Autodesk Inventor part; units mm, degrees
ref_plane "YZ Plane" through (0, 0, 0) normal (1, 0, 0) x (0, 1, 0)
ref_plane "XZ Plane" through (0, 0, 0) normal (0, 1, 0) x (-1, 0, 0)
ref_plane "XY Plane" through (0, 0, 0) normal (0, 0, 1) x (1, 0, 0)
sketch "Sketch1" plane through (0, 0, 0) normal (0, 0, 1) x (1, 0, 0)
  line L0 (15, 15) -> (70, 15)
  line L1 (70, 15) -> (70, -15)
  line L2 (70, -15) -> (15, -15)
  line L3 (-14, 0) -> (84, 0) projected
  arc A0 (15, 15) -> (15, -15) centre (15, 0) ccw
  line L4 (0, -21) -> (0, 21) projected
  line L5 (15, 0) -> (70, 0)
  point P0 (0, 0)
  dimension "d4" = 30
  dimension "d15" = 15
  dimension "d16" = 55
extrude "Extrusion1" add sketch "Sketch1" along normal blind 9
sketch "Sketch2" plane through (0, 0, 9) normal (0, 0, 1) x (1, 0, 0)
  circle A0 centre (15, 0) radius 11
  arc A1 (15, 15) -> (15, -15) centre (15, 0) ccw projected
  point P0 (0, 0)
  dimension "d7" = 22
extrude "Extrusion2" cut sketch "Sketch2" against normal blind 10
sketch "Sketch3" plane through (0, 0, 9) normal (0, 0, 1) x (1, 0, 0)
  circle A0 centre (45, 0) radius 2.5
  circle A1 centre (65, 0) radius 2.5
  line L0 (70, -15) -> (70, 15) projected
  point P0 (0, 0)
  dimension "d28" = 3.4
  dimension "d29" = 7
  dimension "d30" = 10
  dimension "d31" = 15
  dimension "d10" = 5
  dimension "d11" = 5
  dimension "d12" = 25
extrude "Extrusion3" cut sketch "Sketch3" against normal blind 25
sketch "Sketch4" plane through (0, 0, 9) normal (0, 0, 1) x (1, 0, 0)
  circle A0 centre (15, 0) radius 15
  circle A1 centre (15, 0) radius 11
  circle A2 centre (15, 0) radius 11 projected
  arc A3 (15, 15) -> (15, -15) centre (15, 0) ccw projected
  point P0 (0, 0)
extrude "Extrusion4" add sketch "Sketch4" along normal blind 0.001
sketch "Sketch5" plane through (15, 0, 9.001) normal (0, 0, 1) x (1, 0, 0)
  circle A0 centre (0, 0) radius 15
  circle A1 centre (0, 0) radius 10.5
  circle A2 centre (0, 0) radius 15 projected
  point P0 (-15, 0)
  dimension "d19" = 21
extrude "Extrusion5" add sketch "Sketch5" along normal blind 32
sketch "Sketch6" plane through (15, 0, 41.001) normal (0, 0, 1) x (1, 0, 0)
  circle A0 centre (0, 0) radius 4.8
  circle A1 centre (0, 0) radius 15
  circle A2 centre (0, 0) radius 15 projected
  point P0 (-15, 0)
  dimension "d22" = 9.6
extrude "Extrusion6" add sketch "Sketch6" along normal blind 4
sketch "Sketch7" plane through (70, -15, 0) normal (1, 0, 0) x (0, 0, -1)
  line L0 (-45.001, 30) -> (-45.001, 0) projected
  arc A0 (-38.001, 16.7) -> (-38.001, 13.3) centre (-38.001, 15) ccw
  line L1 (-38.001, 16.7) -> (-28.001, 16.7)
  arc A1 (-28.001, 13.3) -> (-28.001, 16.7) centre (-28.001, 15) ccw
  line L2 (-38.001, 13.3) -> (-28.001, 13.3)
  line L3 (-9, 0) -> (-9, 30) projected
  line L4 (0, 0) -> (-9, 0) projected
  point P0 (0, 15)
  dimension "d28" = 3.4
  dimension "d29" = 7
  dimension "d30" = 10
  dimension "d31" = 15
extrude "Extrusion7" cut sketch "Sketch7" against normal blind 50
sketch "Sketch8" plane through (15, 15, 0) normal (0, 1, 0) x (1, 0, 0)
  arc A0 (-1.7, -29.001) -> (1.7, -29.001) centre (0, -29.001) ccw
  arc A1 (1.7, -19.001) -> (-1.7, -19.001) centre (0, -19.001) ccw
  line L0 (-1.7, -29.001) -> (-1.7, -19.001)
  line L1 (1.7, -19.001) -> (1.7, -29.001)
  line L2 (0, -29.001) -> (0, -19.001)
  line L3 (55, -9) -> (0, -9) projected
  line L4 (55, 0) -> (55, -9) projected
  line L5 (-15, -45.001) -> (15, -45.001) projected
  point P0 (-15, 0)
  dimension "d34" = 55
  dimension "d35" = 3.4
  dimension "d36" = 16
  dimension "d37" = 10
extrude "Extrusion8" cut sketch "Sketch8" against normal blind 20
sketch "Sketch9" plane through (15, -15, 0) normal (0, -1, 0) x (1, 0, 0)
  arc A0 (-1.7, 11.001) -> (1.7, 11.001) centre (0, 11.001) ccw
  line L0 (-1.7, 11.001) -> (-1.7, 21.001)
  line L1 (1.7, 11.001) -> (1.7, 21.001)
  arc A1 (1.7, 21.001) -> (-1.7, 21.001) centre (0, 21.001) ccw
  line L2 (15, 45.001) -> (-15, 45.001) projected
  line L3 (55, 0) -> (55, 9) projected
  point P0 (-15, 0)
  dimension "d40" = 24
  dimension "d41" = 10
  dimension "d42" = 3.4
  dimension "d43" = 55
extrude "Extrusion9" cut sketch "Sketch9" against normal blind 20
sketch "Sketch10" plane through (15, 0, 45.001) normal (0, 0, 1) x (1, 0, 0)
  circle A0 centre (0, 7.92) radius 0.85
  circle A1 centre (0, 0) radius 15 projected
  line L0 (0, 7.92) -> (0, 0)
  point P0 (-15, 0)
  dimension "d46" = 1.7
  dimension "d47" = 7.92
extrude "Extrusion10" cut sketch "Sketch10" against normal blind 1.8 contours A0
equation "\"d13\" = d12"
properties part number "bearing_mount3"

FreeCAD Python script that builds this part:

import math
import FreeCAD as App
import Part
import Sketcher
Q = App.Units.Quantity

doc = App.newDocument("Part")
body = doc.addObject("PartDesign::Body", "Body")

# Sketch on XY plane
sketch1 = doc.addObject("Sketcher::SketchObject", "Sketch")
body.addObject(sketch1)
sketch1.AttachmentSupport = (doc.XY_Plane, [""])
sketch1.MapMode = "FlatFace"
sketch1.addGeometry([
    Part.LineSegment(App.Vector(70, 15, 0), App.Vector(15, 15, 0)),
    Part.ArcOfCircle(Part.Circle(App.Vector(15, 0, 0), App.Vector(0, 0, 1), 15), math.radians(90), math.radians(270)),
    Part.LineSegment(App.Vector(15, -15, 0), App.Vector(70, -15, 0)),
    Part.LineSegment(App.Vector(70, -15, 0), App.Vector(70, 15, 0)),
], False)
sketch1.addConstraint([
    Sketcher.Constraint("Tangent", 0, 2, 1, 1),
    Sketcher.Constraint("Tangent", 1, 2, 2, 1),
    Sketcher.Constraint("Coincident", 2, 2, 3, 1),
    Sketcher.Constraint("Coincident", 3, 2, 0, 1),
    Sketcher.Constraint("Horizontal", 0),
    Sketcher.Constraint("Horizontal", 2),
    Sketcher.Constraint("Vertical", 3),
    Sketcher.Constraint("PointOnObject", 1, 3, -1),
    Sketcher.Constraint("Radius", 1, Q("15 mm")),
    Sketcher.Constraint("DistanceX", 0, 2, 0, 1, Q("55 mm")),
    Sketcher.Constraint("DistanceX", -1, 1, 1, 3, Q("15 mm")),
])
pad1 = doc.addObject("PartDesign::Pad", "Pad")
body.addObject(pad1)
pad1.Profile = sketch1
pad1.Length = 9

# Sketch on XY plane
sketch2 = doc.addObject("Sketcher::SketchObject", "Sketch001")
body.addObject(sketch2)
sketch2.AttachmentSupport = (doc.XY_Plane, [""])
sketch2.MapMode = "FlatFace"
sketch2.AttachmentOffset = App.Placement(App.Vector(0, 0, 9), App.Rotation())
sketch2.addGeometry(Part.Circle(App.Vector(15, 0, 0), App.Vector(0, 0, 1), 11), False)
sketch2.addConstraint([
    Sketcher.Constraint("PointOnObject", 0, 3, -1),
    Sketcher.Constraint("Diameter", 0, Q("22 mm")),
    Sketcher.Constraint("DistanceX", -1, 1, 0, 3, Q("15 mm")),
])
pocket1 = doc.addObject("PartDesign::Pocket", "Pocket")
body.addObject(pocket1)
pocket1.Profile = sketch2
pocket1.Length = 10

# Sketch on XY plane
sketch3 = doc.addObject("Sketcher::SketchObject", "Sketch002")
body.addObject(sketch3)
sketch3.AttachmentSupport = (doc.XY_Plane, [""])
sketch3.MapMode = "FlatFace"
sketch3.AttachmentOffset = App.Placement(App.Vector(0, 0, 9), App.Rotation())
sketch3.addGeometry([
    Part.Circle(App.Vector(45, 0, 0), App.Vector(0, 0, 1), 2.5),
    Part.Circle(App.Vector(65, 0, 0), App.Vector(0, 0, 1), 2.5),
], False)
sketch3.addConstraint([
    Sketcher.Constraint("Equal", 0, 1),
    Sketcher.Constraint("PointOnObject", 0, 3, -1),
    Sketcher.Constraint("PointOnObject", 1, 3, -1),
    Sketcher.Constraint("Diameter", 0, Q("5 mm")),
    Sketcher.Constraint("DistanceX", -1, 1, 0, 3, Q("45 mm")),
    Sketcher.Constraint("DistanceX", -1, 1, 1, 3, Q("65 mm")),
])
pocket2 = doc.addObject("PartDesign::Pocket", "Pocket001")
body.addObject(pocket2)
pocket2.Profile = sketch3
pocket2.Length = 25

# Sketch on XY plane
sketch4 = doc.addObject("Sketcher::SketchObject", "Sketch003")
body.addObject(sketch4)
sketch4.AttachmentSupport = (doc.XY_Plane, [""])
sketch4.MapMode = "FlatFace"
sketch4.AttachmentOffset = App.Placement(App.Vector(0, 0, 9), App.Rotation())
sketch4.addGeometry([
    Part.Circle(App.Vector(15, 0, 0), App.Vector(0, 0, 1), 15),
    Part.Circle(App.Vector(15, 0, 0), App.Vector(0, 0, 1), 11),
], False)
sketch4.addConstraint([
    Sketcher.Constraint("Coincident", 1, 3, 0, 3),
    Sketcher.Constraint("PointOnObject", 0, 3, -1),
    Sketcher.Constraint("Diameter", 0, Q("30 mm")),
    Sketcher.Constraint("Diameter", 1, Q("22 mm")),
    Sketcher.Constraint("DistanceX", -1, 1, 0, 3, Q("15 mm")),
])
pad2 = doc.addObject("PartDesign::Pad", "Pad001")
body.addObject(pad2)
pad2.Profile = sketch4
pad2.Length = 0.001

# Sketch on XY plane
sketch5 = doc.addObject("Sketcher::SketchObject", "Sketch004")
body.addObject(sketch5)
sketch5.AttachmentSupport = (doc.XY_Plane, [""])
sketch5.MapMode = "FlatFace"
sketch5.AttachmentOffset = App.Placement(App.Vector(0, 0, 9.001), App.Rotation())
sketch5.addGeometry([
    Part.Circle(App.Vector(15, 0, 0), App.Vector(0, 0, 1), 15),
    Part.Circle(App.Vector(15, 0, 0), App.Vector(0, 0, 1), 10.5),
], False)
sketch5.addConstraint([
    Sketcher.Constraint("Coincident", 1, 3, 0, 3),
    Sketcher.Constraint("PointOnObject", 0, 3, -1),
    Sketcher.Constraint("Diameter", 1, Q("21 mm")),
    Sketcher.Constraint("Diameter", 0, Q("30 mm")),
    Sketcher.Constraint("DistanceX", -1, 1, 0, 3, Q("15 mm")),
])
pad3 = doc.addObject("PartDesign::Pad", "Pad002")
body.addObject(pad3)
pad3.Profile = sketch5
pad3.Length = 32

# Sketch on XY plane
sketch6 = doc.addObject("Sketcher::SketchObject", "Sketch005")
body.addObject(sketch6)
sketch6.AttachmentSupport = (doc.XY_Plane, [""])
sketch6.MapMode = "FlatFace"
sketch6.AttachmentOffset = App.Placement(App.Vector(0, 0, 41.001), App.Rotation())
sketch6.addGeometry([
    Part.Circle(App.Vector(15, 0, 0), App.Vector(0, 0, 1), 15),
    Part.Circle(App.Vector(15, 0, 0), App.Vector(0, 0, 1), 4.8),
], False)
sketch6.addConstraint([
    Sketcher.Constraint("Coincident", 1, 3, 0, 3),
    Sketcher.Constraint("PointOnObject", 0, 3, -1),
    Sketcher.Constraint("Diameter", 1, Q("9.6 mm")),
    Sketcher.Constraint("Diameter", 0, Q("30 mm")),
    Sketcher.Constraint("DistanceX", -1, 1, 0, 3, Q("15 mm")),
])
pad4 = doc.addObject("PartDesign::Pad", "Pad003")
body.addObject(pad4)
pad4.Profile = sketch6
pad4.Length = 4

# Sketch on YZ plane
sketch7 = doc.addObject("Sketcher::SketchObject", "Sketch006")
body.addObject(sketch7)
sketch7.AttachmentSupport = (doc.YZ_Plane, [""])
sketch7.MapMode = "FlatFace"
sketch7.AttachmentOffset = App.Placement(App.Vector(0, 0, 70), App.Rotation())
sketch7.addGeometry([
    Part.LineSegment(App.Vector(1.7, 28.001, 0), App.Vector(1.7, 38.001, 0)),
    Part.ArcOfCircle(Part.Circle(App.Vector(0, 38.001, 0), App.Vector(0, 0, 1), 1.7), math.radians(0), math.radians(180)),
    Part.LineSegment(App.Vector(-1.7, 38.001, 0), App.Vector(-1.7, 28.001, 0)),
    Part.ArcOfCircle(Part.Circle(App.Vector(0, 28.001, 0), App.Vector(0, 0, 1), 1.7), math.radians(180), math.radians(360)),
], False)
sketch7.addConstraint([
    Sketcher.Constraint("Tangent", 0, 2, 1, 1),
    Sketcher.Constraint("Tangent", 1, 2, 2, 1),
    Sketcher.Constraint("Tangent", 2, 2, 3, 1),
    Sketcher.Constraint("Tangent", 3, 2, 0, 1),
    Sketcher.Constraint("Vertical", 0),
    Sketcher.Constraint("Vertical", 2),
    Sketcher.Constraint("PointOnObject", 1, 3, -2),
    Sketcher.Constraint("Radius", 1, Q("1.7 mm")),
    Sketcher.Constraint("DistanceY", 0, 1, 0, 2, Q("10 mm")),
    Sketcher.Constraint("DistanceY", -1, 1, 1, 3, Q("38.001 mm")),
])
pocket3 = doc.addObject("PartDesign::Pocket", "Pocket002")
body.addObject(pocket3)
pocket3.Profile = sketch7
pocket3.Length = 50

# Sketch on XZ plane
sketch8 = doc.addObject("Sketcher::SketchObject", "Sketch007")
body.addObject(sketch8)
sketch8.AttachmentSupport = (doc.XZ_Plane, [""])
sketch8.MapMode = "FlatFace"
sketch8.AttachmentOffset = App.Placement(App.Vector(0, 0, -15), App.Rotation())
sketch8.addGeometry([
    Part.LineSegment(App.Vector(13.3, 19.001, 0), App.Vector(13.3, 29.001, 0)),
    Part.ArcOfCircle(Part.Circle(App.Vector(15, 29.001, 0), App.Vector(0, 0, 1), 1.7), math.radians(0), math.radians(180)),
    Part.LineSegment(App.Vector(16.7, 29.001, 0), App.Vector(16.7, 19.001, 0)),
    Part.ArcOfCircle(Part.Circle(App.Vector(15, 19.001, 0), App.Vector(0, 0, 1), 1.7), math.radians(180), math.radians(360)),
], False)
sketch8.addConstraint([
    Sketcher.Constraint("Tangent", 0, 2, 1, 2),
    Sketcher.Constraint("Tangent", 1, 1, 2, 1),
    Sketcher.Constraint("Tangent", 2, 2, 3, 2),
    Sketcher.Constraint("Tangent", 3, 1, 0, 1),
    Sketcher.Constraint("Vertical", 0),
    Sketcher.Constraint("Vertical", 2),
    Sketcher.Constraint("Radius", 1, Q("1.7 mm")),
    Sketcher.Constraint("DistanceY", 0, 1, 0, 2, Q("10 mm")),
    Sketcher.Constraint("DistanceX", -1, 1, 1, 3, Q("15 mm")),
    Sketcher.Constraint("DistanceY", -1, 1, 1, 3, Q("29.001 mm")),
])
pocket4 = doc.addObject("PartDesign::Pocket", "Pocket003")
body.addObject(pocket4)
pocket4.Profile = sketch8
pocket4.Length = 20
pocket4.Reversed = True

# Sketch on XZ plane
sketch9 = doc.addObject("Sketcher::SketchObject", "Sketch008")
body.addObject(sketch9)
sketch9.AttachmentSupport = (doc.XZ_Plane, [""])
sketch9.MapMode = "FlatFace"
sketch9.AttachmentOffset = App.Placement(App.Vector(0, 0, 15), App.Rotation())
sketch9.addGeometry([
    Part.LineSegment(App.Vector(13.3, 21.001, 0), App.Vector(13.3, 11.001, 0)),
    Part.ArcOfCircle(Part.Circle(App.Vector(15, 11.001, 0), App.Vector(0, 0, 1), 1.7), math.radians(180), math.radians(360)),
    Part.LineSegment(App.Vector(16.7, 11.001, 0), App.Vector(16.7, 21.001, 0)),
    Part.ArcOfCircle(Part.Circle(App.Vector(15, 21.001, 0), App.Vector(0, 0, 1), 1.7), math.radians(0), math.radians(180)),
], False)
sketch9.addConstraint([
    Sketcher.Constraint("Tangent", 0, 2, 1, 1),
    Sketcher.Constraint("Tangent", 1, 2, 2, 1),
    Sketcher.Constraint("Tangent", 2, 2, 3, 1),
    Sketcher.Constraint("Tangent", 3, 2, 0, 1),
    Sketcher.Constraint("Vertical", 0),
    Sketcher.Constraint("Vertical", 2),
    Sketcher.Constraint("Radius", 1, Q("1.7 mm")),
    Sketcher.Constraint("DistanceY", 0, 2, 0, 1, Q("10 mm")),
    Sketcher.Constraint("DistanceX", -1, 1, 1, 3, Q("15 mm")),
    Sketcher.Constraint("DistanceY", -1, 1, 1, 3, Q("11.001 mm")),
])
pocket5 = doc.addObject("PartDesign::Pocket", "Pocket004")
body.addObject(pocket5)
pocket5.Profile = sketch9
pocket5.Length = 20

# Sketch on XY plane
sketch10 = doc.addObject("Sketcher::SketchObject", "Sketch009")
body.addObject(sketch10)
sketch10.AttachmentSupport = (doc.XY_Plane, [""])
sketch10.MapMode = "FlatFace"
sketch10.AttachmentOffset = App.Placement(App.Vector(0, 0, 45.001), App.Rotation())
sketch10.addGeometry(Part.Circle(App.Vector(15, 7.92, 0), App.Vector(0, 0, 1), 0.85), False)
sketch10.addConstraint([
    Sketcher.Constraint("Diameter", 0, Q("1.7 mm")),
    Sketcher.Constraint("DistanceY", -1, 1, 0, 3, Q("7.92 mm")),
    Sketcher.Constraint("DistanceX", -1, 1, 0, 3, Q("15 mm")),
])
pocket6 = doc.addObject("PartDesign::Pocket", "Pocket005")
body.addObject(pocket6)
pocket6.Profile = sketch10
pocket6.Length = 1.8

doc.recompute()
